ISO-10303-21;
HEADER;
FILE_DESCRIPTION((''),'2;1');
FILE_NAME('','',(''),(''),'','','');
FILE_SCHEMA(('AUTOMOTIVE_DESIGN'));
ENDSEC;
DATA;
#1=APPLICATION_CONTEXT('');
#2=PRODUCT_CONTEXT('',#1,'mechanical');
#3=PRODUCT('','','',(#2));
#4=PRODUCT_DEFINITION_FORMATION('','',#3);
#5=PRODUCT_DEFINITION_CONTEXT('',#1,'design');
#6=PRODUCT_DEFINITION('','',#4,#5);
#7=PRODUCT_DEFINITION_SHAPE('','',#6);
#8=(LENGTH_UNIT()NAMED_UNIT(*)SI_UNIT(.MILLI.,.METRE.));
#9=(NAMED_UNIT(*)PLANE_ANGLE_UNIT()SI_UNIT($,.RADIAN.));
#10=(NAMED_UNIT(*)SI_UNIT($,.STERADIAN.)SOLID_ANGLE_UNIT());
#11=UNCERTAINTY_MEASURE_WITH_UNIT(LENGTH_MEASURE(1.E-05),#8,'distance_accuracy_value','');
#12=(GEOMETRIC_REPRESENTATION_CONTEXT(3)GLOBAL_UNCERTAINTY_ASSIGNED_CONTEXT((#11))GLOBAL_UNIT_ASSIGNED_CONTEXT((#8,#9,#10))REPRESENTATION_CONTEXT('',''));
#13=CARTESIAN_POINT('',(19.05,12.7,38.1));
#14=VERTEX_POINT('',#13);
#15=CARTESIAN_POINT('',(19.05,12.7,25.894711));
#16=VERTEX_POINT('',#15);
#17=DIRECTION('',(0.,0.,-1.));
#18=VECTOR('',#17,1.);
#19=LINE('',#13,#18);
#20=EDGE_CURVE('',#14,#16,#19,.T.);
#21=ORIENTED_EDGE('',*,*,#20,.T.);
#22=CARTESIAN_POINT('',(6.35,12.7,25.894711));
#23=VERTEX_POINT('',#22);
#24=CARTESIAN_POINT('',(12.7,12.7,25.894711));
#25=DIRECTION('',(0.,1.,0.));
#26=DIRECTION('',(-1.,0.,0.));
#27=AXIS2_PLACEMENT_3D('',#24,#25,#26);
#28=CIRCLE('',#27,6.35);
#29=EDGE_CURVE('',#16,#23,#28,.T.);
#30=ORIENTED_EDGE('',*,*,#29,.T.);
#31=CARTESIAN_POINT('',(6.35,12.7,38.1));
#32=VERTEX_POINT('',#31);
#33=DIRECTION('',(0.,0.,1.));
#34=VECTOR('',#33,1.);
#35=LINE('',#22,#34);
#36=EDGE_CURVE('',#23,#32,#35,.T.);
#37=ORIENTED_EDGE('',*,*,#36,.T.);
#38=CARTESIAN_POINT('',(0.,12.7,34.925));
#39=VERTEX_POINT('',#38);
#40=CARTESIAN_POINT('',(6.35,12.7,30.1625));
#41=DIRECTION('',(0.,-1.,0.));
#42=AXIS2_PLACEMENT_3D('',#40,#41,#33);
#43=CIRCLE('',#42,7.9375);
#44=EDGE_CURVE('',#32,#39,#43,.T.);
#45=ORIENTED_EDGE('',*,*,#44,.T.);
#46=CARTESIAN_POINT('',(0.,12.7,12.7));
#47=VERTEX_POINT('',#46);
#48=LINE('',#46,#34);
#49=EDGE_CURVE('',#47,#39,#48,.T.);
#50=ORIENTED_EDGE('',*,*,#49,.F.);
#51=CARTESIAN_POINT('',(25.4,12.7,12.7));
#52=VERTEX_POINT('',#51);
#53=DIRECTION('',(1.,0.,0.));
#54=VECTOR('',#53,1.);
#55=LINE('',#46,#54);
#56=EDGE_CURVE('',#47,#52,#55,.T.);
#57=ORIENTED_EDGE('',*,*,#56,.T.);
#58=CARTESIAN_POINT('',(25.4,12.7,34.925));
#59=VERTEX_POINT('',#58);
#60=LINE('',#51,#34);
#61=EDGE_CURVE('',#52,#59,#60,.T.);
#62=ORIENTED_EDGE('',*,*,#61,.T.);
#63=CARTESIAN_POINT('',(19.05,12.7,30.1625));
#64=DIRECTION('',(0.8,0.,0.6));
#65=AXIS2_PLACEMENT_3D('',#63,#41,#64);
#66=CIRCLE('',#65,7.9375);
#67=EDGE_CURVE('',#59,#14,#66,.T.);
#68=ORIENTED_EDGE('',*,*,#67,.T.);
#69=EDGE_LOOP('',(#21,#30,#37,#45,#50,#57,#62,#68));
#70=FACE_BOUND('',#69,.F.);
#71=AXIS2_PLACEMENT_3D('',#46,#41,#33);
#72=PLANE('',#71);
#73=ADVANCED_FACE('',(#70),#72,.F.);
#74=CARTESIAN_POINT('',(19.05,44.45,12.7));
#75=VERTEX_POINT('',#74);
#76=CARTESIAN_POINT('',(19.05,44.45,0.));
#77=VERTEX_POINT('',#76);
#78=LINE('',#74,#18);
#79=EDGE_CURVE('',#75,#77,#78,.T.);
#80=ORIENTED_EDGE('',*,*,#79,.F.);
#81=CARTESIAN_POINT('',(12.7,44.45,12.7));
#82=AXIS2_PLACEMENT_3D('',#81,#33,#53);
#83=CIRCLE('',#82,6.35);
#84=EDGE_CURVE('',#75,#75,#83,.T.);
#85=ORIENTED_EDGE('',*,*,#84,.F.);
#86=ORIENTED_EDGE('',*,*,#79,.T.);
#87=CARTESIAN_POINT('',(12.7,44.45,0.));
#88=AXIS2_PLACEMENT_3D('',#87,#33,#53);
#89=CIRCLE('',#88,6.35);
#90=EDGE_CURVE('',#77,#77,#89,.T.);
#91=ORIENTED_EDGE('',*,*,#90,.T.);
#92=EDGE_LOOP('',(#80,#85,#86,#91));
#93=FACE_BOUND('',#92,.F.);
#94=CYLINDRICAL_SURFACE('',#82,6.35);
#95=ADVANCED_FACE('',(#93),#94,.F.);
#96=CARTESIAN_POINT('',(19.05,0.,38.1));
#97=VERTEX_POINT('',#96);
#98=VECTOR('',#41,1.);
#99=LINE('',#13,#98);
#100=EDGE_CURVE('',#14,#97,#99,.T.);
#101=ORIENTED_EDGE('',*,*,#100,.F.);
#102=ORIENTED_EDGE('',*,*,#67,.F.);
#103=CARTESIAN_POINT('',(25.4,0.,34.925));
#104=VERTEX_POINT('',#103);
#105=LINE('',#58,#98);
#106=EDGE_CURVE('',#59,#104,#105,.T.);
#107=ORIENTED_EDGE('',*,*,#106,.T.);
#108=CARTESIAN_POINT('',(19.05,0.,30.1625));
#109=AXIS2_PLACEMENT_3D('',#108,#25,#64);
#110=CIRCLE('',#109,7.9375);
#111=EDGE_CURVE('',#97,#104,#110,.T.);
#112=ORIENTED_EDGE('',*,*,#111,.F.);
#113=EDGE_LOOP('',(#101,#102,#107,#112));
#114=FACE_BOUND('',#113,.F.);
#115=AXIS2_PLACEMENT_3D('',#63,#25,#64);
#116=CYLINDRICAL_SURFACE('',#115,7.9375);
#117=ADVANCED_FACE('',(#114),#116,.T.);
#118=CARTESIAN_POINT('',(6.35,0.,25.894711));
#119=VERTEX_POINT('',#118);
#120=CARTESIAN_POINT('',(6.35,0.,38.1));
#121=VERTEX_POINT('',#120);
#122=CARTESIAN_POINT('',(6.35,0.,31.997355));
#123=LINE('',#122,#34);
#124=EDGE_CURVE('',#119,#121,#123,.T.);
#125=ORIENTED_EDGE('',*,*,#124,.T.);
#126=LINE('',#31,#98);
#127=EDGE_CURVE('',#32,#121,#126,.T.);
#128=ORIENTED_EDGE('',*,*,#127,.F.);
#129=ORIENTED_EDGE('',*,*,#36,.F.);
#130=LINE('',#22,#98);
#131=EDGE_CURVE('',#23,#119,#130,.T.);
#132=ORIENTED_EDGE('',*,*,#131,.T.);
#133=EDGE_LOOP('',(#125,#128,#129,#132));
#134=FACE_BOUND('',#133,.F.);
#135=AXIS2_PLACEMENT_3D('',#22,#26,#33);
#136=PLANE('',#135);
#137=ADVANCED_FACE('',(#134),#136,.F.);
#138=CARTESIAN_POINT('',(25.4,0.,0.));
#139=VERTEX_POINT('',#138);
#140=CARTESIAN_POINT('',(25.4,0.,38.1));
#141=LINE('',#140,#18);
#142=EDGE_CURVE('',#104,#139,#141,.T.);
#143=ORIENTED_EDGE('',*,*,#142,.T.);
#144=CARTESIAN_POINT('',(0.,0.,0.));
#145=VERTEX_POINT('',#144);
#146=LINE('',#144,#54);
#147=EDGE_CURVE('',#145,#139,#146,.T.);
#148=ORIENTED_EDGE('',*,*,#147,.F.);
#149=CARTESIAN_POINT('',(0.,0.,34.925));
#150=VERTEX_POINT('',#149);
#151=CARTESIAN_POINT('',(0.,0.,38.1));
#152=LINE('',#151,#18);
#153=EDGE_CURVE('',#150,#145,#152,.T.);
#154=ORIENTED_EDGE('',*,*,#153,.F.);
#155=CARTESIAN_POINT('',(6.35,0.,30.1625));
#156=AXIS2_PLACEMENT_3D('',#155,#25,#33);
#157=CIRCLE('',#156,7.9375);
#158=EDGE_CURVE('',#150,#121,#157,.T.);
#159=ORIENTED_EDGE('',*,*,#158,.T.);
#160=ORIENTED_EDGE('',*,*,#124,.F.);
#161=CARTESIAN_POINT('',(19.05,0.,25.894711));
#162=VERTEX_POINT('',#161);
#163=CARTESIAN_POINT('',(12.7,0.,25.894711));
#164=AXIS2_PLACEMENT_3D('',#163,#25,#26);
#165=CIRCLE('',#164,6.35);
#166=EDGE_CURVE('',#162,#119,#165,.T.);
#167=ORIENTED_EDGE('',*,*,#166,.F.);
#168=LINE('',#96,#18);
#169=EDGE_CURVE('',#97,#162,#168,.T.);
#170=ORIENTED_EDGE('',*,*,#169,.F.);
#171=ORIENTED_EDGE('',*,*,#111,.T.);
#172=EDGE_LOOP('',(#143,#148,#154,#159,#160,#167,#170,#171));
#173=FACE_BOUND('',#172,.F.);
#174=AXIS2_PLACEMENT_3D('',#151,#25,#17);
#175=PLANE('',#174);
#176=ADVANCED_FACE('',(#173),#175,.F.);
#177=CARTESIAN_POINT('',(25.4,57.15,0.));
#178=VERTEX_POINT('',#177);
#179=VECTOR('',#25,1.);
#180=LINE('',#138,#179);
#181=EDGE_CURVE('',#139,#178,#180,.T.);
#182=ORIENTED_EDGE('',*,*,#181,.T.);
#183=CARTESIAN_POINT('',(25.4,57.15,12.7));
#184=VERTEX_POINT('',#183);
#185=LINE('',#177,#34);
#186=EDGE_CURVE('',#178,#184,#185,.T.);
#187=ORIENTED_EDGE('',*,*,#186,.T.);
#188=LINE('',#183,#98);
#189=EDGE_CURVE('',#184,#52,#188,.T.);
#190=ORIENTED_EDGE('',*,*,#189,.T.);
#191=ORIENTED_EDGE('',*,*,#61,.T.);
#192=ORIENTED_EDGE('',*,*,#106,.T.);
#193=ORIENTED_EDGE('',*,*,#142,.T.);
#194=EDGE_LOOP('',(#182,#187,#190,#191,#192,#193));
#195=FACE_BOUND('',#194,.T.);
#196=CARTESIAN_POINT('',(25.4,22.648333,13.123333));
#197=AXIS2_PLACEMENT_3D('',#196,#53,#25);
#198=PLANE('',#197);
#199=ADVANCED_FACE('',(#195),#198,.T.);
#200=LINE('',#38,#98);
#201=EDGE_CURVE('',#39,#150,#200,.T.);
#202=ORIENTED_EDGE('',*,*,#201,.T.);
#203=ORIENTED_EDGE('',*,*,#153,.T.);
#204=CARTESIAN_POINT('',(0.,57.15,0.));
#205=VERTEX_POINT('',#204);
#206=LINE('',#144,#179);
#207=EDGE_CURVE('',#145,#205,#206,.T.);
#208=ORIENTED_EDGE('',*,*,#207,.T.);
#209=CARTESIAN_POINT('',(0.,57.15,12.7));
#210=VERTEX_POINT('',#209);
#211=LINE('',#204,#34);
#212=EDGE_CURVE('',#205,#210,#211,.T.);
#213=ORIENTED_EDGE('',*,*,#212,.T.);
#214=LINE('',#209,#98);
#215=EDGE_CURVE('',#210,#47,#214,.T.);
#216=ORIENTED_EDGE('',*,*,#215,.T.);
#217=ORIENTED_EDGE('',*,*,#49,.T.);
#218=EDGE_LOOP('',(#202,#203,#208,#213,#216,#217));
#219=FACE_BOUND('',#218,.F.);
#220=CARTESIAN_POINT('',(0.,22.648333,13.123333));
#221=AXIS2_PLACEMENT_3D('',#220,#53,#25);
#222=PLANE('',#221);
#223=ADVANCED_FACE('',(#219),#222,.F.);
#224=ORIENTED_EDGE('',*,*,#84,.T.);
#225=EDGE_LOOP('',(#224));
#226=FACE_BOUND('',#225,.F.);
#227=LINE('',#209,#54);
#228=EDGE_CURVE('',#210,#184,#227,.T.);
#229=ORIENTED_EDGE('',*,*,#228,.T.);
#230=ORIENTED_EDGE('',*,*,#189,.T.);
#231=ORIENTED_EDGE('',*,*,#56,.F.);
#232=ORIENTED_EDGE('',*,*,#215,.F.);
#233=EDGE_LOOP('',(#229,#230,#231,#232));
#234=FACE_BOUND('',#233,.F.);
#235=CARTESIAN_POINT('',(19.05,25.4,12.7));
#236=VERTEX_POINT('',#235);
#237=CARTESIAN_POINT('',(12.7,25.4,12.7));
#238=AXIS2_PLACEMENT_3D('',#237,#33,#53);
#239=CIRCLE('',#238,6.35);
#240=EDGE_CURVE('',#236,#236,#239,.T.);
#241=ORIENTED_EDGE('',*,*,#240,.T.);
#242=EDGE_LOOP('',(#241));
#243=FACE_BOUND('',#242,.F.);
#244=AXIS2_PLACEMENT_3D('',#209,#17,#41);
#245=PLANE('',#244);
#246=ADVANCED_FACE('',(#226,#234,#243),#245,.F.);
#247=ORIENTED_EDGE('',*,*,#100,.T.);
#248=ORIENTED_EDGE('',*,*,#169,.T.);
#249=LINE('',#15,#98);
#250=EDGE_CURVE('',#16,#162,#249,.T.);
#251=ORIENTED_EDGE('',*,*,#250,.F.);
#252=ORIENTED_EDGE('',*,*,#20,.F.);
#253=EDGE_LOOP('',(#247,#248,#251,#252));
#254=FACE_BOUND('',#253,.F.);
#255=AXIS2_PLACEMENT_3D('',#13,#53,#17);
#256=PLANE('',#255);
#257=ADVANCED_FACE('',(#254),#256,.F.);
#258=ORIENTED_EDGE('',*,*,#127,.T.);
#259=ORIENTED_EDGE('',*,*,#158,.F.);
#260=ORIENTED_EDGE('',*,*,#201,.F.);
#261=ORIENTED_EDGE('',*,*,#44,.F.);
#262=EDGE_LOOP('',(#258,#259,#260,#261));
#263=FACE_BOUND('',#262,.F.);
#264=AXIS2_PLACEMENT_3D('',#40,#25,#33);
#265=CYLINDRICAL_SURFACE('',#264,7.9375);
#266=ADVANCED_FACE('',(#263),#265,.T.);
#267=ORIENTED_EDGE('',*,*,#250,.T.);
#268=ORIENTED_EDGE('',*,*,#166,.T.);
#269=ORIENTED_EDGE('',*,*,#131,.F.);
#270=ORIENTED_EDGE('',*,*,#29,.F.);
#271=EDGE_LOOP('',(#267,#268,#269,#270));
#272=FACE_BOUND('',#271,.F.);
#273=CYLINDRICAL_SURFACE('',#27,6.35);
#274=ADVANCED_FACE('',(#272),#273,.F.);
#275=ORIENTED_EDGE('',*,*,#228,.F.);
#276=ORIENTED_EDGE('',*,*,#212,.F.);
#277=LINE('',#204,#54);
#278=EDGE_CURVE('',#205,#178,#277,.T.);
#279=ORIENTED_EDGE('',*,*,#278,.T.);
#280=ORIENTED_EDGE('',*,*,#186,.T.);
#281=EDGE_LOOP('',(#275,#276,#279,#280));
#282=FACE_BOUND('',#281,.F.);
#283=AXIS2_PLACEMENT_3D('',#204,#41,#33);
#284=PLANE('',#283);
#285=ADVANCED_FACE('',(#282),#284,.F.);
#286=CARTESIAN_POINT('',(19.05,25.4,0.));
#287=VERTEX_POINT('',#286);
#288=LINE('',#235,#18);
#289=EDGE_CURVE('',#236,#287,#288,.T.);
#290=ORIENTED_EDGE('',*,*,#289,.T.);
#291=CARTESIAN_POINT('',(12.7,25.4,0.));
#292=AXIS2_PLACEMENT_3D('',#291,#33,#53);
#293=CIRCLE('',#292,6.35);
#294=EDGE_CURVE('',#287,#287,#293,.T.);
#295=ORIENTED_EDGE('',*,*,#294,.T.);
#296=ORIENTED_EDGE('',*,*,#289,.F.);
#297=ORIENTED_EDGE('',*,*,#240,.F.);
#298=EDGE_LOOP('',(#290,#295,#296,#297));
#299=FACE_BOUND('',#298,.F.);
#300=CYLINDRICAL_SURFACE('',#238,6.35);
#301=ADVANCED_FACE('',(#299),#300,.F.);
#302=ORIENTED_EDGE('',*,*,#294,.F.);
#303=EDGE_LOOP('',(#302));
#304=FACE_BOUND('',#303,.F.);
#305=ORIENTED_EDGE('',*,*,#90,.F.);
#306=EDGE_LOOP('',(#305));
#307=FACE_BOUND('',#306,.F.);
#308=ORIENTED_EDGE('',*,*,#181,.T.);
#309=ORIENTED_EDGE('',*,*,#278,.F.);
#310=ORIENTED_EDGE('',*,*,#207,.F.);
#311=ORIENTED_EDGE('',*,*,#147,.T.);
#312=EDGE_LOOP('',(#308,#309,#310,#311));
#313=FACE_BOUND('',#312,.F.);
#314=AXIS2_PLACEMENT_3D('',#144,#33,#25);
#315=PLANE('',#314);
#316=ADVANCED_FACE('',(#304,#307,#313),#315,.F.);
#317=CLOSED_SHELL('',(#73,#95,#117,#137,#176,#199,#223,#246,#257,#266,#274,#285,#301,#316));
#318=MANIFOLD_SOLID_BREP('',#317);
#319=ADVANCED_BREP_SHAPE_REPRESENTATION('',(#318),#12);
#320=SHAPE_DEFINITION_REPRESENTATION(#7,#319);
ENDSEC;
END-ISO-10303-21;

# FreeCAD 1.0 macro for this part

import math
import FreeCAD as App
import Part
import Sketcher

V = App.Vector
Q = App.Units.Quantity

doc = App.newDocument("Part")
body = doc.addObject("PartDesign::Body", "Body")

# Sketch on YZ plane
sketch1 = doc.addObject("Sketcher::SketchObject", "Sketch")
body.addObject(sketch1)
sketch1.AttachmentSupport = (doc.YZ_Plane, [""])
sketch1.MapMode = "FlatFace"
sketch1.addGeometry(Part.LineSegment(V(0, 38, 0), V(0, 0, 0)), False)
sketch1.addGeometry(Part.LineSegment(V(0, 0, 0), V(57, 0, 0)), False)
sketch1.addGeometry(Part.LineSegment(V(57, 0, 0), V(57, 13, 0)), False)
sketch1.addGeometry(Part.LineSegment(V(57, 13, 0), V(13, 13, 0)), False)
sketch1.addGeometry(Part.LineSegment(V(13, 13, 0), V(13, 38, 0)), False)
sketch1.addGeometry(Part.LineSegment(V(13, 38, 0), V(0, 38, 0)), False)
sketch1.addConstraint(Sketcher.Constraint("Coincident", 0, 2, 1, 1))
sketch1.addConstraint(Sketcher.Constraint("Coincident", 1, 2, 2, 1))
sketch1.addConstraint(Sketcher.Constraint("Coincident", 2, 2, 3, 1))
sketch1.addConstraint(Sketcher.Constraint("Coincident", 3, 2, 4, 1))
sketch1.addConstraint(Sketcher.Constraint("Coincident", 4, 2, 5, 1))
sketch1.addConstraint(Sketcher.Constraint("Coincident", 5, 2, 0, 1))
sketch1.addConstraint(Sketcher.Constraint("Vertical", 0))
sketch1.addConstraint(Sketcher.Constraint("Horizontal", 1))
sketch1.addConstraint(Sketcher.Constraint("Vertical", 2))
sketch1.addConstraint(Sketcher.Constraint("Horizontal", 3))
sketch1.addConstraint(Sketcher.Constraint("Vertical", 4))
sketch1.addConstraint(Sketcher.Constraint("Horizontal", 5))
sketch1.addConstraint(Sketcher.Constraint("Coincident", 0, 2, -1, 1))
sketch1.addConstraint(Sketcher.Constraint("Equal", 5, 2))
sketch1.addConstraint(Sketcher.Constraint("DistanceY", 4, 1, 4, 2, Q("1 in")))
sketch1.addConstraint(Sketcher.Constraint("DistanceX", 5, 2, 5, 1, Q("0.5 in")))
sketch1.addConstraint(Sketcher.Constraint("DistanceX", 1, 1, 1, 2, Q("2.25 in")))
pad1 = doc.addObject("PartDesign::Pad", "Pad")
body.addObject(pad1)
pad1.Profile = sketch1
pad1.Length = Q("1 in")

# Sketch on XZ plane
sketch2 = doc.addObject("Sketcher::SketchObject", "Sketch001")
body.addObject(sketch2)
sketch2.AttachmentSupport = (doc.XZ_Plane, [""])
sketch2.MapMode = "FlatFace"
sketch2.AttachmentOffset = App.Placement(V(0, 0, -0.5 * 25.4), App.Rotation())
sketch2.addGeometry(Part.ArcOfCircle(Part.Circle(V(13, 26, 0), V(0, 0, 1), 6), math.radians(180), math.radians(360)), False)
sketch2.addGeometry(Part.LineSegment(V(6, 26, 0), V(6, 38, 0)), False)
sketch2.addGeometry(Part.LineSegment(V(6, 38, 0), V(19, 38, 0)), False)
sketch2.addGeometry(Part.LineSegment(V(19, 38, 0), V(19, 26, 0)), False)
sketch2.addConstraint(Sketcher.Constraint("Tangent", 0, 1, 1, 1))
sketch2.addConstraint(Sketcher.Constraint("Coincident", 1, 2, 2, 1))
sketch2.addConstraint(Sketcher.Constraint("Coincident", 2, 2, 3, 1))
sketch2.addConstraint(Sketcher.Constraint("Tangent", 3, 2, 0, 2))
sketch2.addConstraint(Sketcher.Constraint("Vertical", 1))
sketch2.addConstraint(Sketcher.Constraint("Horizontal", 2))
sketch2.addConstraint(Sketcher.Constraint("Vertical", 3))
sketch2.addConstraint(Sketcher.Constraint("Radius", 0, Q("0.25 in")))
sketch2.addConstraint(Sketcher.Constraint("DistanceX", -1, 1, 0, 3, Q("0.5 in")))
sketch2.addConstraint(Sketcher.Constraint("DistanceY", -1, 1, 1, 2, Q("1.5 in")))
sketch2.addConstraint(Sketcher.Constraint("DistanceY", 1, 1, 1, 2, Q("12.205289 mm")))
pocket1 = doc.addObject("PartDesign::Pocket", "Pocket")
body.addObject(pocket1)
pocket1.Profile = sketch2
pocket1.Length = Q("1 in")
pocket1.Reversed = True

# Sketch on XZ plane
sketch3 = doc.addObject("Sketcher::SketchObject", "Sketch002")
body.addObject(sketch3)
sketch3.AttachmentSupport = (doc.XZ_Plane, [""])
sketch3.MapMode = "FlatFace"
sketch3.AttachmentOffset = App.Placement(V(0, 0, -0.5 * 25.4), App.Rotation())
sketch3.addGeometry(Part.ArcOfCircle(Part.Circle(V(19.1, 30.2, 0), V(0, 0, 1), 7.9), math.radians(37), math.radians(90)), False)
sketch3.addGeometry(Part.LineSegment(V(19.1, 38.1, 0), V(25.4, 38.1, 0)), False)
sketch3.addGeometry(Part.LineSegment(V(25.4, 38.1, 0), V(25.4, 34.9, 0)), False)
sketch3.addConstraint(Sketcher.Constraint("Tangent", 0, 2, 1, 1))
sketch3.addConstraint(Sketcher.Constraint("Coincident", 1, 2, 2, 1))
sketch3.addConstraint(Sketcher.Constraint("Coincident", 2, 2, 0, 1))
sketch3.addConstraint(Sketcher.Constraint("Horizontal", 1))
sketch3.addConstraint(Sketcher.Constraint("Vertical", 2))
sketch3.addConstraint(Sketcher.Constraint("DistanceX", -1, 1, 1, 2, Q("1 in")))
sketch3.addConstraint(Sketcher.Constraint("Radius", 0, Q("0.3125 in")))
sketch3.addConstraint(Sketcher.Constraint("DistanceX", 1, 1, 1, 2, Q("0.25 in")))
sketch3.addConstraint(Sketcher.Constraint("DistanceY", -1, 1, 0, 2, Q("1.5 in")))
pocket2 = doc.addObject("PartDesign::Pocket", "Pocket001")
body.addObject(pocket2)
pocket2.Profile = sketch3
pocket2.Length = Q("1 in")
pocket2.Reversed = True

# Sketch on XZ plane
sketch4 = doc.addObject("Sketcher::SketchObject", "Sketch003")
body.addObject(sketch4)
sketch4.AttachmentSupport = (doc.XZ_Plane, [""])
sketch4.MapMode = "FlatFace"
sketch4.AttachmentOffset = App.Placement(V(0, 0, -0.5 * 25.4), App.Rotation())
sketch4.addGeometry(Part.ArcOfCircle(Part.Circle(V(6.3, 30.2, 0), V(0, 0, 1), 7.9), math.radians(90), math.radians(143)), False)
sketch4.addGeometry(Part.LineSegment(V(0, 34.9, 0), V(0, 38.1, 0)), False)
sketch4.addGeometry(Part.LineSegment(V(0, 38.1, 0), V(6.3, 38.1, 0)), False)
sketch4.addConstraint(Sketcher.Constraint("Coincident", 0, 2, 1, 1))
sketch4.addConstraint(Sketcher.Constraint("Coincident", 1, 2, 2, 1))
sketch4.addConstraint(Sketcher.Constraint("Tangent", 2, 2, 0, 1))
sketch4.addConstraint(Sketcher.Constraint("Vertical", 1))
sketch4.addConstraint(Sketcher.Constraint("Horizontal", 2))
sketch4.addConstraint(Sketcher.Constraint("PointOnObject", 0, 2, -2))
sketch4.addConstraint(Sketcher.Constraint("Radius", 0, Q("0.3125 in")))
sketch4.addConstraint(Sketcher.Constraint("DistanceX", 2, 1, 2, 2, Q("0.25 in")))
sketch4.addConstraint(Sketcher.Constraint("DistanceY", -1, 1, 1, 2, Q("1.5 in")))
pocket3 = doc.addObject("PartDesign::Pocket", "Pocket002")
body.addObject(pocket3)
pocket3.Profile = sketch4
pocket3.Length = Q("1 in")
pocket3.Reversed = True

# Sketch on XY plane
sketch5 = doc.addObject("Sketcher::SketchObject", "Sketch004")
body.addObject(sketch5)
sketch5.AttachmentSupport = (doc.XY_Plane, [""])
sketch5.MapMode = "FlatFace"
sketch5.AttachmentOffset = App.Placement(V(0, 0, 0.5 * 25.4), App.Rotation())
sketch5.addGeometry(Part.Circle(V(13, 44, 0), V(0, 0, 1), 6), False)
sketch5.addGeometry(Part.Circle(V(13, 25, 0), V(0, 0, 1), 6), False)
sketch5.addConstraint(Sketcher.Constraint("Equal", 0, 1))
sketch5.addConstraint(Sketcher.Constraint("Vertical", 0, 3, 1, 3))
sketch5.addConstraint(Sketcher.Constraint("Diameter", 0, Q("0.5 in")))
sketch5.addConstraint(Sketcher.Constraint("DistanceY", -1, 1, 1, 3, Q("1 in")))
sketch5.addConstraint(Sketcher.Constraint("DistanceX", -1, 1, 0, 3, Q("0.5 in")))
sketch5.addConstraint(Sketcher.Constraint("DistanceY", -1, 1, 0, 3, Q("1.75 in")))
pocket4 = doc.addObject("PartDesign::Pocket", "Pocket003")
body.addObject(pocket4)
pocket4.Profile = sketch5
pocket4.Length = Q("1 in")

doc.recompute()
